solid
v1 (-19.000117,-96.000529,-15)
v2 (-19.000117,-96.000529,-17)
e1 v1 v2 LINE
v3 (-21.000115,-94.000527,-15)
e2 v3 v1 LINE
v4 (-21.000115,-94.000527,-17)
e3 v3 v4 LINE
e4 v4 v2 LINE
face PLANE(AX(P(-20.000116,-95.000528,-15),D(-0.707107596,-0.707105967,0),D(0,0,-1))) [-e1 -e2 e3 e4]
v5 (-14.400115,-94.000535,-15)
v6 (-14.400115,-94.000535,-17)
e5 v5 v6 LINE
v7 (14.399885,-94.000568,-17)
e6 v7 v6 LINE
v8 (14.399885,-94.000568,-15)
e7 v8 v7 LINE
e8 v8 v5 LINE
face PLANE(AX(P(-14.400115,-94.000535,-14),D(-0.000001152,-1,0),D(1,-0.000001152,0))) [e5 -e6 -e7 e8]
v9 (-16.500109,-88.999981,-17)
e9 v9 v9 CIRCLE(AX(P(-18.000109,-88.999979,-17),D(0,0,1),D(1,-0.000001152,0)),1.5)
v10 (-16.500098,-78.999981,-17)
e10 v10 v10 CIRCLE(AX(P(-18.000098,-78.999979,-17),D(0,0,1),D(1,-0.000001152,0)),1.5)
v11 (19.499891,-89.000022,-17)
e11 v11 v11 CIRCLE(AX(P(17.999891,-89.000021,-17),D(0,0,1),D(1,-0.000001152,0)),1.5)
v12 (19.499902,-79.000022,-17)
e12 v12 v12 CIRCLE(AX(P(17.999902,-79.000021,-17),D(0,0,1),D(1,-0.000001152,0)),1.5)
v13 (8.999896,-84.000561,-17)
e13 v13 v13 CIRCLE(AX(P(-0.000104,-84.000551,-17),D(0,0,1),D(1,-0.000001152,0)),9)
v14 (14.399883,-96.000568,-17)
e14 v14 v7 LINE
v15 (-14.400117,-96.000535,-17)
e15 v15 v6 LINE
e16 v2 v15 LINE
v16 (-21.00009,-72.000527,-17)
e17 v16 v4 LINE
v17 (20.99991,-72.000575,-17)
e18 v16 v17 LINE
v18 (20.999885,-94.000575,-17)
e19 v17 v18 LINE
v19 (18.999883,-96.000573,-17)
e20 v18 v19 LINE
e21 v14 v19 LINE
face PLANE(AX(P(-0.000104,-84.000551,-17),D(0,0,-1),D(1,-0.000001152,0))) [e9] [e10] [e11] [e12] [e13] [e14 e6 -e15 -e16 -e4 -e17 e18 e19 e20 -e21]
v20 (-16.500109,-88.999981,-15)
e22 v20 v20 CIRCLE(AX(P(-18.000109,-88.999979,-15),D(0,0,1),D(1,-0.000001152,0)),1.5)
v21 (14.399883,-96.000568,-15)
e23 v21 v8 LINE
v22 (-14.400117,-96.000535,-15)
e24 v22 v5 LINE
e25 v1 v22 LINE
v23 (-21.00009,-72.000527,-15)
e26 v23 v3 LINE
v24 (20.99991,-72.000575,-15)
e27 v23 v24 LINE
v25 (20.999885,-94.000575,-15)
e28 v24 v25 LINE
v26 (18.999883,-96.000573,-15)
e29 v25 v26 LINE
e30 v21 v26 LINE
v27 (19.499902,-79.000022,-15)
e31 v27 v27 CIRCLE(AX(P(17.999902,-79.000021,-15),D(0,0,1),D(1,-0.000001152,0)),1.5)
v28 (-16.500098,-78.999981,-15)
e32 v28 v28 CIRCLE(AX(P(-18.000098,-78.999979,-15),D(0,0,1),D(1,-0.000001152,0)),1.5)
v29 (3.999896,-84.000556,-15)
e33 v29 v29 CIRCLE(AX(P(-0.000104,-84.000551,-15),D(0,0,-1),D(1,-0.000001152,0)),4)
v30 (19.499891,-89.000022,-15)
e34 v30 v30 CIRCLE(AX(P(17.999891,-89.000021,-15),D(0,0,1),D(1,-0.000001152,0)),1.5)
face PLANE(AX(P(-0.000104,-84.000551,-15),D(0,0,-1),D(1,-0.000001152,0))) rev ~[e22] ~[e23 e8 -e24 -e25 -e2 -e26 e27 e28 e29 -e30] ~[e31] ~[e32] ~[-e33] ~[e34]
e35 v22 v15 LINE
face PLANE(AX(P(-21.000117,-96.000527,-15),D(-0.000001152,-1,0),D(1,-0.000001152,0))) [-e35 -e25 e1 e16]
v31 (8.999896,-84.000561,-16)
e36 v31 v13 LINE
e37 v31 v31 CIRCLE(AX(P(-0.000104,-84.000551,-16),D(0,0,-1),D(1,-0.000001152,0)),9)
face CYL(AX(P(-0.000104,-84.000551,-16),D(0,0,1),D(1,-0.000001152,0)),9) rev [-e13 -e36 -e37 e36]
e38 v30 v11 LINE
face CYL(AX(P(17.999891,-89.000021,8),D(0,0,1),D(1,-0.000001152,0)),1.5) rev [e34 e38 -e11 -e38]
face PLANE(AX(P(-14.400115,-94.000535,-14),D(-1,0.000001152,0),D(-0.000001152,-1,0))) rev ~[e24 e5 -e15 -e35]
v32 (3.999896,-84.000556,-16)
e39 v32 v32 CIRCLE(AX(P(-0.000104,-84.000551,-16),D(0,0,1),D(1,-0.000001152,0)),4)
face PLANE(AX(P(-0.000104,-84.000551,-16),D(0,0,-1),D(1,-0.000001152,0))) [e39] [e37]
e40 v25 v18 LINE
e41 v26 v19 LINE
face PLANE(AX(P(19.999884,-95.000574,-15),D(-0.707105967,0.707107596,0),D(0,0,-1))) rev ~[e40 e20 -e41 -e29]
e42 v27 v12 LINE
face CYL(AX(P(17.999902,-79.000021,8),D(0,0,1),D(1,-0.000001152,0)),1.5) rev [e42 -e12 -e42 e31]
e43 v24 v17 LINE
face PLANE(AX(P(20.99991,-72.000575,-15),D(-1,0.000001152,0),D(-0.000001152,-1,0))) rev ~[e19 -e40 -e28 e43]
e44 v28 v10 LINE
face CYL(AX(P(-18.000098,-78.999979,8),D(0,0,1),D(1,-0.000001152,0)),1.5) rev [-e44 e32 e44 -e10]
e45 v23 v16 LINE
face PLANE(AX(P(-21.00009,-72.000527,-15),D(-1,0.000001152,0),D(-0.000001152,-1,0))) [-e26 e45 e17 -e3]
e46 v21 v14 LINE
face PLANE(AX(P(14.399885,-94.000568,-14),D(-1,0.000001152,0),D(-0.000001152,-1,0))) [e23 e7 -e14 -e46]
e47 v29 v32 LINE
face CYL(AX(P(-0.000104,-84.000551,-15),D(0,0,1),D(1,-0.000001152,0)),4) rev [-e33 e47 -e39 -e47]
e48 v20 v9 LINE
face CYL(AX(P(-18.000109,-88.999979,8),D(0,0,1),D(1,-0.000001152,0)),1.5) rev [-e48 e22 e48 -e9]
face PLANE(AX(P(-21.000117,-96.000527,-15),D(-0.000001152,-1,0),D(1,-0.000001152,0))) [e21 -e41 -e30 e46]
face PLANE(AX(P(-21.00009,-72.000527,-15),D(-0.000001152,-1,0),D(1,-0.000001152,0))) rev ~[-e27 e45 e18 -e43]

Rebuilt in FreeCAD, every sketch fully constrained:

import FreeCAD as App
import Part
import Sketcher
from FreeCAD import Vector
Q = App.Units.Quantity


def edges_at(feature, points):
    """Names of the edges that pass closest to the given points."""
    edges = feature.Shape.Edges
    near = lambda p: min(range(len(edges)), key=lambda i: edges[i].distToShape(Part.Vertex(*p))[0])
    return sorted({f"Edge{near(p) + 1}" for p in points})

doc = App.newDocument("Part")
body = doc.addObject("PartDesign::Body", "Body")

sketch1 = doc.addObject("Sketcher::SketchObject", "Sketch")
body.addObject(sketch1)
sketch1.AttachmentSupport = (doc.XY_Plane, [""])
sketch1.MapMode = "FlatFace"
sketch1.addGeometry(Part.Circle(Vector(0, 0, 0), Vector(0, 0, 1), 9), False)
sketch1.addConstraint([
    Sketcher.Constraint("Coincident", 0, 3, -1, 1),
    Sketcher.Constraint("Diameter", 0, Q("18 mm")),
])
pad1 = doc.addObject("PartDesign::Pad", "Pad")
body.addObject(pad1)
pad1.Profile = sketch1
pad1.Length = 4
body2 = doc.addObject("PartDesign::Body", "Body001")
doc.recompute()

body.Placement = App.Placement(Vector(63.64, -63.64, 64), App.Rotation(Vector(0, 0, 1), 225))
boolean = doc.addObject("PartDesign::Boolean", "Boolean")
body2.addObject(boolean)
boolean.Type = "Fuse"
boolean.addObjects([body])
body3 = doc.addObject("PartDesign::Body", "Body002")

sketch2 = doc.addObject("Sketcher::SketchObject", "Sketch001")
body3.addObject(sketch2)
sketch2.AttachmentSupport = (doc.getObject("XY_Plane002"), [""])
sketch2.MapMode = "FlatFace"
sketch2.AttachmentOffset = App.Placement(Vector(0, 0, 24), App.Rotation())
sketch2.addGeometry([
    Part.LineSegment(Vector(-14.4, 12, 0), Vector(-14.4, 10, 0)),
    Part.LineSegment(Vector(-14.4, 10, 0), Vector(14.4, 10, 0)),
    Part.LineSegment(Vector(14.4, 10, 0), Vector(14.4, 12, 0)),
    Part.LineSegment(Vector(14.4, 12, 0), Vector(-14.4, 12, 0)),
], False)
sketch2.addConstraint([
    Sketcher.Constraint("Coincident", 0, 2, 1, 1),
    Sketcher.Constraint("Coincident", 1, 2, 2, 1),
    Sketcher.Constraint("Coincident", 2, 2, 3, 1),
    Sketcher.Constraint("Coincident", 3, 2, 0, 1),
    Sketcher.Constraint("Vertical", 0),
    Sketcher.Constraint("Horizontal", 1),
    Sketcher.Constraint("Vertical", 2),
    Sketcher.Constraint("Horizontal", 3),
    Sketcher.Constraint("DistanceY", 0, 2, 0, 1, Q("2 mm")),
    Sketcher.Constraint("DistanceX", 1, 1, 1, 2, Q("28.8 mm")),
    Sketcher.Constraint("DistanceY", -1, 1, 0, 2, Q("10 mm")),
    Sketcher.Constraint("DistanceX", 0, 2, -1, 1, Q("14.4 mm")),
])
pad2 = doc.addObject("PartDesign::Pad", "Pad001")
body3.addObject(pad2)
pad2.Profile = sketch2
pad2.Length = 4
body4 = doc.addObject("PartDesign::Body", "Body003")
doc.recompute()

body3.Placement = App.Placement(Vector(63.64, -63.64, 38), App.Rotation(Vector(0, 0, 1), 225))
boolean2 = doc.addObject("PartDesign::Boolean", "Boolean001")
body4.addObject(boolean2)
boolean2.Type = "Fuse"
boolean2.addObjects([body3])
body5 = doc.addObject("PartDesign::Body", "Body004")

sketch3 = doc.addObject("Sketcher::SketchObject", "Sketch002")
body5.addObject(sketch3)
sketch3.AttachmentSupport = (doc.getObject("XY_Plane004"), [""])
sketch3.MapMode = "FlatFace"
sketch3.AttachmentOffset = App.Placement(Vector(0, 0, -57), App.Rotation())
sketch3.addGeometry(Part.Circle(Vector(18, 85, 0), Vector(0, 0, 1), 1.5), False)
sketch3.addConstraint([
    Sketcher.Constraint("Diameter", 0, Q("3 mm")),
    Sketcher.Constraint("DistanceX", -1, 1, 0, 3, Q("18 mm")),
    Sketcher.Constraint("DistanceY", -1, 1, 0, 3, Q("85 mm")),
])
pad3 = doc.addObject("PartDesign::Pad", "Pad002")
body5.addObject(pad3)
pad3.Profile = sketch3
pad3.Length = 60
body6 = doc.addObject("PartDesign::Body", "Body005")

sketch4 = doc.addObject("Sketcher::SketchObject", "Sketch003")
body6.addObject(sketch4)
sketch4.AttachmentSupport = (doc.getObject("XY_Plane005"), [""])
sketch4.MapMode = "FlatFace"
sketch4.AttachmentOffset = App.Placement(Vector(0, 0, -57), App.Rotation())
sketch4.addGeometry(Part.Circle(Vector(-18, 85, 0), Vector(0, 0, 1), 1.5), False)
sketch4.addConstraint([
    Sketcher.Constraint("Diameter", 0, Q("3 mm")),
    Sketcher.Constraint("DistanceX", 0, 3, -1, 1, Q("18 mm")),
    Sketcher.Constraint("DistanceY", -1, 1, 0, 3, Q("85 mm")),
])
pad4 = doc.addObject("PartDesign::Pad", "Pad003")
body6.addObject(pad4)
pad4.Profile = sketch4
pad4.Length = 60
body7 = doc.addObject("PartDesign::Body", "Body006")

sketch5 = doc.addObject("Sketcher::SketchObject", "Sketch004")
body7.addObject(sketch5)
sketch5.AttachmentSupport = (doc.getObject("XY_Plane006"), [""])
sketch5.MapMode = "FlatFace"
sketch5.AttachmentOffset = App.Placement(Vector(0, 0, -57), App.Rotation())
sketch5.addGeometry(Part.Circle(Vector(-18, 95, 0), Vector(0, 0, 1), 1.5), False)
sketch5.addConstraint([
    Sketcher.Constraint("Diameter", 0, Q("3 mm")),
    Sketcher.Constraint("DistanceX", 0, 3, -1, 1, Q("18 mm")),
    Sketcher.Constraint("DistanceY", -1, 1, 0, 3, Q("95 mm")),
])
pad5 = doc.addObject("PartDesign::Pad", "Pad004")
body7.addObject(pad5)
pad5.Profile = sketch5
pad5.Length = 60
body8 = doc.addObject("PartDesign::Body", "Body007")
body8.AllowCompound = True

sketch6 = doc.addObject("Sketcher::SketchObject", "Sketch005")
body8.addObject(sketch6)
sketch6.AttachmentSupport = (doc.getObject("XY_Plane007"), [""])
sketch6.MapMode = "FlatFace"
sketch6.AttachmentOffset = App.Placement(Vector(0, 0, -57), App.Rotation())
sketch6.addGeometry(Part.Circle(Vector(18, 95, 0), Vector(0, 0, 1), 1.5), False)
sketch6.addConstraint([
    Sketcher.Constraint("Diameter", 0, Q("3 mm")),
    Sketcher.Constraint("DistanceX", -1, 1, 0, 3, Q("18 mm")),
    Sketcher.Constraint("DistanceY", -1, 1, 0, 3, Q("95 mm")),
])
pad6 = doc.addObject("PartDesign::Pad", "Pad005")
body8.addObject(pad6)
pad6.Profile = sketch6
pad6.Length = 60
doc.recompute()

boolean3 = doc.addObject("PartDesign::Boolean", "Boolean002")
body8.addObject(boolean3)
boolean3.Type = "Fuse"
boolean3.addObjects([body5])
doc.recompute()

boolean4 = doc.addObject("PartDesign::Boolean", "Boolean003")
body8.addObject(boolean4)
boolean4.Type = "Fuse"
boolean4.addObjects([body6])
doc.recompute()

boolean5 = doc.addObject("PartDesign::Boolean", "Boolean004")
body8.addObject(boolean5)
boolean5.Type = "Fuse"
boolean5.addObjects([body7])
body9 = doc.addObject("PartDesign::Body", "Body008")
body9.AllowCompound = True
doc.recompute()

body8.Placement = App.Placement(Vector(0, 0, 100), App.Rotation(Vector(0, 0, 1), 225))
boolean6 = doc.addObject("PartDesign::Boolean", "Boolean005")
body9.addObject(boolean6)
boolean6.Type = "Fuse"
boolean6.addObjects([body8])
body10 = doc.addObject("PartDesign::Body", "Body009")

sketch7 = doc.addObject("Sketcher::SketchObject", "Sketch006")
body10.addObject(sketch7)
sketch7.AttachmentSupport = (doc.getObject("XY_Plane009"), [""])
sketch7.MapMode = "FlatFace"
sketch7.addGeometry(Part.Circle(Vector(0, 0, 0), Vector(0, 0, 1), 4), False)
sketch7.addConstraint([
    Sketcher.Constraint("Coincident", 0, 3, -1, 1),
    Sketcher.Constraint("Diameter", 0, Q("8 mm")),
])
pad7 = doc.addObject("PartDesign::Pad", "Pad006")
body10.addObject(pad7)
pad7.Profile = sketch7
pad7.Length = 4
body11 = doc.addObject("PartDesign::Body", "Body010")
doc.recompute()

body10.Placement = App.Placement(Vector(63.64, -63.64, 76), App.Rotation(Vector(0, 0, 1), 225))
boolean7 = doc.addObject("PartDesign::Boolean", "Boolean006")
body11.addObject(boolean7)
boolean7.Type = "Fuse"
boolean7.addObjects([body10])
body12 = doc.addObject("PartDesign::Body", "Body011")

sketch8 = doc.addObject("Sketcher::SketchObject", "Sketch007")
body12.addObject(sketch8)
sketch8.AttachmentSupport = (doc.getObject("XY_Plane011"), [""])
sketch8.MapMode = "FlatFace"
sketch8.AttachmentOffset = App.Placement(Vector(0, 0, 34), App.Rotation())
sketch8.addGeometry([
    Part.LineSegment(Vector(-21, 12, 0), Vector(-21, -12, 0)),
    Part.LineSegment(Vector(-21, -12, 0), Vector(21, -12, 0)),
    Part.LineSegment(Vector(21, -12, 0), Vector(21, 12, 0)),
    Part.LineSegment(Vector(21, 12, 0), Vector(-21, 12, 0)),
], False)
sketch8.addConstraint([
    Sketcher.Constraint("Coincident", 0, 2, 1, 1),
    Sketcher.Constraint("Coincident", 1, 2, 2, 1),
    Sketcher.Constraint("Coincident", 2, 2, 3, 1),
    Sketcher.Constraint("Coincident", 3, 2, 0, 1),
    Sketcher.Constraint("Vertical", 0),
    Sketcher.Constraint("Horizontal", 1),
    Sketcher.Constraint("Vertical", 2),
    Sketcher.Constraint("Horizontal", 3),
    Sketcher.Constraint("Symmetric", 0, 2, 2, 2, -1, 1),
    Sketcher.Constraint("DistanceX", 1, 1, 1, 2, Q("42 mm")),
    Sketcher.Constraint("DistanceY", 0, 2, 0, 1, Q("24 mm")),
])
pad8 = doc.addObject("PartDesign::Pad", "Pad007")
body12.addObject(pad8)
pad8.Profile = sketch8
pad8.Length = 2
body13 = doc.addObject("PartDesign::Body", "Body012")
doc.recompute()

body12.Placement = App.Placement(Vector(63.64, -63.64, 42), App.Rotation(Vector(0, 0, 1), 225))
boolean8 = doc.addObject("PartDesign::Boolean", "Boolean007")
body13.addObject(boolean8)
boolean8.Type = "Fuse"
boolean8.addObjects([body12])
doc.recompute()

boolean9 = doc.addObject("PartDesign::Boolean", "Boolean008")
body13.addObject(boolean9)
boolean9.Type = "Cut"
boolean9.addObjects([body11])
body14 = doc.addObject("PartDesign::Body", "Body013")
doc.recompute()

body13.Placement = App.Placement(Vector(0, 0, -10), App.Rotation(Vector(0, 0, 1), 0))
boolean10 = doc.addObject("PartDesign::Boolean", "Boolean009")
body14.addObject(boolean10)
boolean10.Type = "Fuse"
boolean10.addObjects([body13])
doc.recompute()

boolean11 = doc.addObject("PartDesign::Boolean", "Boolean010")
body14.addObject(boolean11)
boolean11.Type = "Cut"
boolean11.addObjects([body9])
body15 = doc.addObject("PartDesign::Body", "Body014")
doc.recompute()

body14.Placement = App.Placement(Vector(0, 0, -3), App.Rotation(Vector(0, 0, 1), 0))
boolean12 = doc.addObject("PartDesign::Boolean", "Boolean011")
body15.addObject(boolean12)
boolean12.Type = "Fuse"
boolean12.addObjects([body14])
doc.recompute()

boolean13 = doc.addObject("PartDesign::Boolean", "Boolean012")
body15.addObject(boolean13)
boolean13.Type = "Cut"
boolean13.addObjects([body4])
doc.recompute()

boolean14 = doc.addObject("PartDesign::Boolean", "Boolean013")
body15.addObject(boolean14)
boolean14.Type = "Cut"
boolean14.addObjects([body2])
doc.recompute()

chamfer = doc.addObject("PartDesign::Chamfer", "Chamfer")
body15.addObject(chamfer)
chamfer.Base = (boolean14, edges_at(boolean14, [(86.975, -57.276, 64), (57.276, -86.975, 64)]))
chamfer.Size = 2
body16 = doc.addObject("PartDesign::Body", "Body015")
doc.recompute()

body15.Placement = App.Placement(Vector(0, 0, 0), App.Rotation(Vector(1, 0, 0), 180))
boolean15 = doc.addObject("PartDesign::Boolean", "Boolean014")
body16.addObject(boolean15)
boolean15.Type = "Fuse"
boolean15.addObjects([body15])
body17 = doc.addObject("PartDesign::Body", "Body016")
doc.recompute()

body16.Placement = App.Placement(Vector(0, 6, 48), App.Rotation(Vector(0, 0, 1), 224.999934))
boolean16 = doc.addObject("PartDesign::Boolean", "Boolean015")
body17.addObject(boolean16)
boolean16.Type = "Fuse"
boolean16.addObjects([body16])

doc.recompute()
